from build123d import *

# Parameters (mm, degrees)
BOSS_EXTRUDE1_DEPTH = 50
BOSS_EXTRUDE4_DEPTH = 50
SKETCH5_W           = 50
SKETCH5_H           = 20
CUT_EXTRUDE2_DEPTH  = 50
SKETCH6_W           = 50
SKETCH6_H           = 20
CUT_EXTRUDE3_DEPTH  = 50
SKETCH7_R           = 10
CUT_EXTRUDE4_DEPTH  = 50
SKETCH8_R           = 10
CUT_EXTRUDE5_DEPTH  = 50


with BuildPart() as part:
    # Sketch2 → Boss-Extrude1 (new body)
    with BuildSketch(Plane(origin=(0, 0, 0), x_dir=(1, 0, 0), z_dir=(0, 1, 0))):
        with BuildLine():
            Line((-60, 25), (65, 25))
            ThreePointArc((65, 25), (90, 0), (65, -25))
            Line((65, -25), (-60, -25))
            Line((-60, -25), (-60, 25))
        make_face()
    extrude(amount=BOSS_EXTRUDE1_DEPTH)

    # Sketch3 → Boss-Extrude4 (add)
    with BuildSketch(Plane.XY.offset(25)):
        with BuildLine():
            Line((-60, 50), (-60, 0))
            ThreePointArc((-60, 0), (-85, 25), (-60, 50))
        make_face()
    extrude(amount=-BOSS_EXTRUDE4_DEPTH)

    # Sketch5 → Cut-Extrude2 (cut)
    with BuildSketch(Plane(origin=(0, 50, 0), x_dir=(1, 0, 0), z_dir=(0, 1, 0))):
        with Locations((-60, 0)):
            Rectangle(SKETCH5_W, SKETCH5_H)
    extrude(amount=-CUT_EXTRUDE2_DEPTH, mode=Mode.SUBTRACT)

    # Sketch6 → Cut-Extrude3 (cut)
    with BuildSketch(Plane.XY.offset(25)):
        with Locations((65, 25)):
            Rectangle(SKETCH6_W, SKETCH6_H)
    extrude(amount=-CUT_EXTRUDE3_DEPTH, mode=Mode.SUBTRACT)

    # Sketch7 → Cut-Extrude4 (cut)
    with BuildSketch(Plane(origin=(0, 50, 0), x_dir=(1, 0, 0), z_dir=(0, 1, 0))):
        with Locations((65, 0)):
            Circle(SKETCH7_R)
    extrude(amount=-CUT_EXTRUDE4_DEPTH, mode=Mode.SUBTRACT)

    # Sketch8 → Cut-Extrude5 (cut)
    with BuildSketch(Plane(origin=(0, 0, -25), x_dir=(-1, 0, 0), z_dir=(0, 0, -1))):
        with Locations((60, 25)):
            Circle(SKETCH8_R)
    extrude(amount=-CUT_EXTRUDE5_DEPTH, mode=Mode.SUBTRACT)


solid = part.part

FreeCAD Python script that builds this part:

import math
import FreeCAD as App
import Part
import Sketcher
Q = App.Units.Quantity


def add_polygon(sketch, points):
    """Adds a closed chain of lines whose ends are joined by coincident constraints."""
    first, n = sketch.GeometryCount, len(points)
    for a, b in zip(points, points[1:] + points[:1]):
        sketch.addGeometry(Part.LineSegment(App.Vector(*a, 0), App.Vector(*b, 0)), False)
    for i in range(n):
        sketch.addConstraint(Sketcher.Constraint("Coincident", first + i, 2, first + (i + 1) % n, 1))

doc = App.newDocument("Part")
body = doc.addObject("PartDesign::Body", "Body")

sketch1 = body.newObject("Sketcher::SketchObject", "Sketch")
sketch1.AttachmentSupport = (doc.getObject("XZ_Plane"), [""])
sketch1.MapMode = "FlatFace"
sketch1.addGeometry([
    Part.LineSegment(App.Vector(65, -25, 0), App.Vector(-60, -25, 0)),
    Part.LineSegment(App.Vector(-60, -25, 0), App.Vector(-60, 25, 0)),
    Part.LineSegment(App.Vector(-60, 25, 0), App.Vector(65, 25, 0)),
    Part.ArcOfCircle(Part.Circle(App.Vector(65, 0, 0), App.Vector(0, 0, 1), 25), math.radians(-90), math.radians(90)),
], False)
sketch1.addConstraint([
    Sketcher.Constraint("Coincident", 0, 2, 1, 1),
    Sketcher.Constraint("Coincident", 1, 2, 2, 1),
    Sketcher.Constraint("Tangent", 2, 2, 3, 2),
    Sketcher.Constraint("Tangent", 3, 1, 0, 1),
    Sketcher.Constraint("Horizontal", 0),
    Sketcher.Constraint("Vertical", 1),
    Sketcher.Constraint("Horizontal", 2),
    Sketcher.Constraint("PointOnObject", 3, 3, -1),
    Sketcher.Constraint("Radius", 3, Q("25 mm")),
    Sketcher.Constraint("DistanceX", 0, 2, 0, 1, Q("125 mm")),
    Sketcher.Constraint("DistanceX", -1, 1, 3, 3, Q("65 mm")),
])
pad1 = body.newObject("PartDesign::Pad", "Pad")
pad1.Profile = sketch1
pad1.Length = 50
pad1.Reversed = True

sketch2 = body.newObject("Sketcher::SketchObject", "Sketch001")
sketch2.AttachmentSupport = (doc.getObject("XY_Plane"), [""])
sketch2.MapMode = "FlatFace"
sketch2.AttachmentOffset = App.Placement(App.Vector(0, 0, 25), App.Rotation())
sketch2.addGeometry([
    Part.LineSegment(App.Vector(-60, 0, 0), App.Vector(-60, 50, 0)),
    Part.ArcOfCircle(Part.Circle(App.Vector(-60, 25, 0), App.Vector(0, 0, 1), 25), math.radians(90), math.radians(270)),
], False)
sketch2.addConstraint([
    Sketcher.Constraint("Coincident", 0, 1, 1, 2),
    Sketcher.Constraint("Coincident", 1, 1, 0, 2),
    Sketcher.Constraint("Vertical", 0),
    Sketcher.Constraint("PointOnObject", 0, 1, -1),
    Sketcher.Constraint("Vertical", 1, 3, 0, 1),
    Sketcher.Constraint("Radius", 1, Q("25 mm")),
    Sketcher.Constraint("DistanceX", 1, 3, -1, 1, Q("60 mm")),
])
pad2 = body.newObject("PartDesign::Pad", "Pad001")
pad2.Profile = sketch2
pad2.Length = 50
pad2.Reversed = True

sketch3 = body.newObject("Sketcher::SketchObject", "Sketch002")
sketch3.AttachmentSupport = (doc.getObject("XZ_Plane"), [""])
sketch3.MapMode = "FlatFace"
sketch3.AttachmentOffset = App.Placement(App.Vector(0, 0, -50), App.Rotation())
add_polygon(sketch3, [(-85, -10), (-85, 10), (-35, 10), (-35, -10)])
sketch3.addConstraint([
    Sketcher.Constraint("Vertical", 0),
    Sketcher.Constraint("Horizontal", 1),
    Sketcher.Constraint("Vertical", 2),
    Sketcher.Constraint("Horizontal", 3),
    Sketcher.Constraint("DistanceX", 1, 1, 1, 2, Q("50 mm")),
    Sketcher.Constraint("DistanceY", 0, 1, 0, 2, Q("20 mm")),
    Sketcher.Constraint("DistanceX", 0, 2, -1, 1, Q("85 mm")),
    Sketcher.Constraint("DistanceY", -1, 1, 0, 2, Q("10 mm")),
])
pocket1 = body.newObject("PartDesign::Pocket", "Pocket")
pocket1.Profile = sketch3
pocket1.Length = 50
pocket1.Reversed = True

sketch4 = body.newObject("Sketcher::SketchObject", "Sketch003")
sketch4.AttachmentSupport = (doc.getObject("XY_Plane"), [""])
sketch4.MapMode = "FlatFace"
sketch4.AttachmentOffset = App.Placement(App.Vector(0, 0, 25), App.Rotation())
add_polygon(sketch4, [(40, 35), (40, 15), (90, 15), (90, 35)])
sketch4.addConstraint([
    Sketcher.Constraint("Vertical", 0),
    Sketcher.Constraint("Horizontal", 1),
    Sketcher.Constraint("Vertical", 2),
    Sketcher.Constraint("Horizontal", 3),
    Sketcher.Constraint("DistanceX", 1, 1, 1, 2, Q("50 mm")),
    Sketcher.Constraint("DistanceY", 0, 2, 0, 1, Q("20 mm")),
    Sketcher.Constraint("DistanceX", -1, 1, 0, 2, Q("40 mm")),
    Sketcher.Constraint("DistanceY", -1, 1, 0, 2, Q("15 mm")),
])
pocket2 = body.newObject("PartDesign::Pocket", "Pocket001")
pocket2.Profile = sketch4
pocket2.Length = 50

sketch5 = body.newObject("Sketcher::SketchObject", "Sketch004")
sketch5.AttachmentSupport = (doc.getObject("XZ_Plane"), [""])
sketch5.MapMode = "FlatFace"
sketch5.AttachmentOffset = App.Placement(App.Vector(0, 0, -50), App.Rotation())
sketch5.addGeometry(Part.Circle(App.Vector(65, 0, 0), App.Vector(0, 0, 1), 10), False)
sketch5.addConstraint([
    Sketcher.Constraint("PointOnObject", 0, 3, -1),
    Sketcher.Constraint("Diameter", 0, Q("20 mm")),
    Sketcher.Constraint("DistanceX", -1, 1, 0, 3, Q("65 mm")),
])
pocket3 = body.newObject("PartDesign::Pocket", "Pocket002")
pocket3.Profile = sketch5
pocket3.Length = 50
pocket3.Reversed = True

sketch6 = body.newObject("Sketcher::SketchObject", "Sketch005")
sketch6.AttachmentSupport = (doc.getObject("XY_Plane"), [""])
sketch6.MapMode = "FlatFace"
sketch6.AttachmentOffset = App.Placement(App.Vector(0, 0, -25), App.Rotation())
sketch6.addGeometry(Part.Circle(App.Vector(-60, 25, 0), App.Vector(0, 0, 1), 10), False)
sketch6.addConstraint([
    Sketcher.Constraint("Diameter", 0, Q("20 mm")),
    Sketcher.Constraint("DistanceX", 0, 3, -1, 1, Q("60 mm")),
    Sketcher.Constraint("DistanceY", -1, 1, 0, 3, Q("25 mm")),
])
pocket4 = body.newObject("PartDesign::Pocket", "Pocket003")
pocket4.Profile = sketch6
pocket4.Length = 50
pocket4.Reversed = True

doc.recompute()
